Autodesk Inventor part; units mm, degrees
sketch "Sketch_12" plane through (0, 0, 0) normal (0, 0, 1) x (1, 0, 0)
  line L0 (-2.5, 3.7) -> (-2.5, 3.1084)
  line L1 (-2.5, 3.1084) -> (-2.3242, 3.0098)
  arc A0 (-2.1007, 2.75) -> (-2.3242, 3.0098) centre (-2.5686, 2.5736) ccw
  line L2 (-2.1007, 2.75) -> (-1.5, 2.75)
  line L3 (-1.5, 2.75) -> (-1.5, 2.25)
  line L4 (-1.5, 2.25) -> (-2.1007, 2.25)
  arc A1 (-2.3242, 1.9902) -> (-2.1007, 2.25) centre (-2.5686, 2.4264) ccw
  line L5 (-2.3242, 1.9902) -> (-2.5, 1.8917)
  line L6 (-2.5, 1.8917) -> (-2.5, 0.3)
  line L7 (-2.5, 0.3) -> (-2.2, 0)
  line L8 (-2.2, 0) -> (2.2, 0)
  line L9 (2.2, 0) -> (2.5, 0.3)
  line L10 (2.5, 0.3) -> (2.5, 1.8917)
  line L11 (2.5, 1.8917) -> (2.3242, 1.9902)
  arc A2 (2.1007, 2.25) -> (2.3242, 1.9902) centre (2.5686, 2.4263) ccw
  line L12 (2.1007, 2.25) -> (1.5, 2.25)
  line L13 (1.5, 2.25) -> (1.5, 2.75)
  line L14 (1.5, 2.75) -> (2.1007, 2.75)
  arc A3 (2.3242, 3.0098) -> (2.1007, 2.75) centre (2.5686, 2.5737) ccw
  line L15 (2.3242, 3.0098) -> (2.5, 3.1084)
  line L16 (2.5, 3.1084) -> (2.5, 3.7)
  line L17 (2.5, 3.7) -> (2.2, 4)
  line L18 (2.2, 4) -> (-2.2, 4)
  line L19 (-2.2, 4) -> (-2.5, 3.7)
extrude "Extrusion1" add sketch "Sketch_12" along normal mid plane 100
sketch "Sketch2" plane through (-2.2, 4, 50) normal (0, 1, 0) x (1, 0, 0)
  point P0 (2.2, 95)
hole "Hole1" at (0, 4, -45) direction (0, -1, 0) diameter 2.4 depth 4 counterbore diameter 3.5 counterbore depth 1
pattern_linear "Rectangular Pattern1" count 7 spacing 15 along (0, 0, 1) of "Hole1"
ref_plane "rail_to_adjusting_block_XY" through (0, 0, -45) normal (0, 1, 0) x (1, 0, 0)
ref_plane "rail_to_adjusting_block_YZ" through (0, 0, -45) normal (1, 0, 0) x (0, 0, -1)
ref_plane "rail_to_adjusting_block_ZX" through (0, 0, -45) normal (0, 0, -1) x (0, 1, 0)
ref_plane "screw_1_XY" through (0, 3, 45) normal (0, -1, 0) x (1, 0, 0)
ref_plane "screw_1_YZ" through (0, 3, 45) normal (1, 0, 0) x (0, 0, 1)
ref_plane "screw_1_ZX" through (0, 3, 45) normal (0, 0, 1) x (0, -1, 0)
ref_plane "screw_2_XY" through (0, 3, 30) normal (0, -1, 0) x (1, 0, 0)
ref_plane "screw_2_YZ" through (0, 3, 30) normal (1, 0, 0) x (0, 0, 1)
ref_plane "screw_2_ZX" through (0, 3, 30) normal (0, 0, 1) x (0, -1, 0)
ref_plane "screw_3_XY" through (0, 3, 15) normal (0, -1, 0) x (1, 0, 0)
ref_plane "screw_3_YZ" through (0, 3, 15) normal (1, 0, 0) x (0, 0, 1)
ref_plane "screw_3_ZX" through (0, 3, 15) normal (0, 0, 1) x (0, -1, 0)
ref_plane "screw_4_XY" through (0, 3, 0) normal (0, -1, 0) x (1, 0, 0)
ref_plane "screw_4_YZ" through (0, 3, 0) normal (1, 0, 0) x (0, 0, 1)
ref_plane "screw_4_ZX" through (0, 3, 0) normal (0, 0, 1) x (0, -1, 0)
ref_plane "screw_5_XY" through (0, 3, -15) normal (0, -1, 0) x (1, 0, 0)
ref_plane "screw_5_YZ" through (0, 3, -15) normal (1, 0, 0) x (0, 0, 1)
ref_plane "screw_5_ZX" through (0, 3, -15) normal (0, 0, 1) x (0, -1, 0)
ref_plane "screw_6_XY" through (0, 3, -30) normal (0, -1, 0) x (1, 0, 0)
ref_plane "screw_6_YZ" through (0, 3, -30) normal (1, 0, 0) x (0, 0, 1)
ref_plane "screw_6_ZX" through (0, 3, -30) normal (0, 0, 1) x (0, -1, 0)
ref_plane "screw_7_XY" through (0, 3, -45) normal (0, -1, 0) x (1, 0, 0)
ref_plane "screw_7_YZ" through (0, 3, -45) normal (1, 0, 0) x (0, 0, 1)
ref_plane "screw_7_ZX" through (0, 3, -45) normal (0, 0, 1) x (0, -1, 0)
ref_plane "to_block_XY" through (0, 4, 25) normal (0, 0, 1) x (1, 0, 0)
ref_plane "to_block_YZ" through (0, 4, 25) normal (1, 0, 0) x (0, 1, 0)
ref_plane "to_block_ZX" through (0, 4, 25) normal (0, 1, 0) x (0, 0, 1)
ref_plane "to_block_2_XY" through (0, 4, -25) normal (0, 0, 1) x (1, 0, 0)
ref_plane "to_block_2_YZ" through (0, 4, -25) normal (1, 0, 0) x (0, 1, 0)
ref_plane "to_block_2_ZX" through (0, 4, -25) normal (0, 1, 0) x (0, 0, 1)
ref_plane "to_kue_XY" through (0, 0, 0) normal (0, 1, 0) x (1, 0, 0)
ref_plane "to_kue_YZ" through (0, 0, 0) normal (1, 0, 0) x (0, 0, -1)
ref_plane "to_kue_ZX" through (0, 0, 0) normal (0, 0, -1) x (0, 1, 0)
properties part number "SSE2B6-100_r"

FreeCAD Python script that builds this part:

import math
import FreeCAD as App
import Part
import Sketcher

doc = App.newDocument("Part")
body = doc.addObject("PartDesign::Body", "Body")

sketch1 = body.newObject("Sketcher::SketchObject", "Sketch")
sketch1.AttachmentSupport = (doc.getObject("XY_Plane"), [""])
sketch1.MapMode = "FlatFace"
sketch1.addGeometry([
    Part.LineSegment(App.Vector(-2.2, 4, 0), App.Vector(-2.5, 3.7, 0)),
    Part.LineSegment(App.Vector(-2.5, 3.7, 0), App.Vector(-2.5, 3.11, 0)),
    Part.LineSegment(App.Vector(-2.5, 3.11, 0), App.Vector(-2.32, 3.01, 0)),
    Part.ArcOfCircle(Part.Circle(App.Vector(-2.57, 2.57, 0), App.Vector(0, 0, 1), 0.5), math.radians(21), math.radians(61)),
    Part.LineSegment(App.Vector(-2.1, 2.75, 0), App.Vector(-1.5, 2.75, 0)),
    Part.LineSegment(App.Vector(-1.5, 2.75, 0), App.Vector(-1.5, 2.25, 0)),
    Part.LineSegment(App.Vector(-1.5, 2.25, 0), App.Vector(-2.1, 2.25, 0)),
    Part.ArcOfCircle(Part.Circle(App.Vector(-2.57, 2.43, 0), App.Vector(0, 0, 1), 0.5), math.radians(-61), math.radians(-21)),
    Part.LineSegment(App.Vector(-2.32, 1.99, 0), App.Vector(-2.5, 1.89, 0)),
    Part.LineSegment(App.Vector(-2.5, 1.89, 0), App.Vector(-2.5, 0.3, 0)),
    Part.LineSegment(App.Vector(-2.5, 0.3, 0), App.Vector(-2.2, 0, 0)),
    Part.LineSegment(App.Vector(-2.2, 0, 0), App.Vector(2.2, 0, 0)),
    Part.LineSegment(App.Vector(2.2, 0, 0), App.Vector(2.5, 0.3, 0)),
    Part.LineSegment(App.Vector(2.5, 0.3, 0), App.Vector(2.5, 1.89, 0)),
    Part.LineSegment(App.Vector(2.5, 1.89, 0), App.Vector(2.32, 1.99, 0)),
    Part.ArcOfCircle(Part.Circle(App.Vector(2.57, 2.43, 0), App.Vector(0, 0, 1), 0.5), math.radians(-159), math.radians(-119)),
    Part.LineSegment(App.Vector(2.1, 2.25, 0), App.Vector(1.5, 2.25, 0)),
    Part.LineSegment(App.Vector(1.5, 2.25, 0), App.Vector(1.5, 2.75, 0)),
    Part.LineSegment(App.Vector(1.5, 2.75, 0), App.Vector(2.1, 2.75, 0)),
    Part.ArcOfCircle(Part.Circle(App.Vector(2.57, 2.57, 0), App.Vector(0, 0, 1), 0.5), math.radians(119), math.radians(159)),
    Part.LineSegment(App.Vector(2.32, 3.01, 0), App.Vector(2.5, 3.11, 0)),
    Part.LineSegment(App.Vector(2.5, 3.11, 0), App.Vector(2.5, 3.7, 0)),
    Part.LineSegment(App.Vector(2.5, 3.7, 0), App.Vector(2.2, 4, 0)),
    Part.LineSegment(App.Vector(2.2, 4, 0), App.Vector(-2.2, 4, 0)),
], False)
sketch1.addConstraint([
    Sketcher.Constraint("Coincident", 0, 2, 1, 1),
    Sketcher.Constraint("Coincident", 1, 2, 2, 1),
    Sketcher.Constraint("Tangent", 2, 2, 3, 2),
    Sketcher.Constraint("Coincident", 3, 1, 4, 1),
    Sketcher.Constraint("Coincident", 4, 2, 5, 1),
    Sketcher.Constraint("Coincident", 5, 2, 6, 1),
    Sketcher.Constraint("Coincident", 6, 2, 7, 2),
    Sketcher.Constraint("Tangent", 7, 1, 8, 1),
    Sketcher.Constraint("Coincident", 8, 2, 9, 1),
    Sketcher.Constraint("Coincident", 9, 2, 10, 1),
    Sketcher.Constraint("Coincident", 10, 2, 11, 1),
    Sketcher.Constraint("Coincident", 11, 2, 12, 1),
    Sketcher.Constraint("Coincident", 12, 2, 13, 1),
    Sketcher.Constraint("Coincident", 13, 2, 14, 1),
    Sketcher.Constraint("Tangent", 14, 2, 15, 2),
    Sketcher.Constraint("Coincident", 15, 1, 16, 1),
    Sketcher.Constraint("Coincident", 16, 2, 17, 1),
    Sketcher.Constraint("Coincident", 17, 2, 18, 1),
    Sketcher.Constraint("Coincident", 18, 2, 19, 2),
    Sketcher.Constraint("Tangent", 19, 1, 20, 1),
    Sketcher.Constraint("Coincident", 20, 2, 21, 1),
    Sketcher.Constraint("Coincident", 21, 2, 22, 1),
    Sketcher.Constraint("Coincident", 22, 2, 23, 1),
    Sketcher.Constraint("Coincident", 23, 2, 0, 1),
    Sketcher.Constraint("Vertical", 1),
    Sketcher.Constraint("Horizontal", 4),
    Sketcher.Constraint("Vertical", 5),
    Sketcher.Constraint("Horizontal", 6),
    Sketcher.Constraint("Vertical", 9),
    Sketcher.Constraint("Horizontal", 11),
    Sketcher.Constraint("Vertical", 13),
    Sketcher.Constraint("Horizontal", 16),
    Sketcher.Constraint("Vertical", 17),
    Sketcher.Constraint("Horizontal", 18),
    Sketcher.Constraint("Vertical", 21),
    Sketcher.Constraint("Horizontal", 23),
    Sketcher.Constraint("Equal", 3, 7),
    Sketcher.Constraint("Equal", 7, 15),
    Sketcher.Constraint("Equal", 15, 19),
    Sketcher.Constraint("Symmetric", 10, 2, 11, 2, -1, 1),
    Sketcher.Constraint("Symmetric", 7, 3, 15, 3, -2),
    Sketcher.Constraint("Symmetric", 3, 3, 19, 3, -2),
    Sketcher.Constraint("Symmetric", 9, 2, 12, 2, -2),
    Sketcher.Constraint("Symmetric", 5, 2, 16, 2, -2),
    Sketcher.Constraint("Symmetric", 1, 2, 20, 2, -2),
    Sketcher.Constraint("Perpendicular", 0, 10),
    Sketcher.Constraint("Perpendicular", 10, 12),
    Sketcher.Constraint("Parallel", 2, 14),
    Sketcher.Constraint("Parallel", 8, 20),
    Sketcher.Constraint("Perpendicular", 12, 22),
    Sketcher.Constraint("Horizontal", 4, 2, 17, 2),
    Sketcher.Constraint("Horizontal", 0, 2, 21, 2),
    Sketcher.Constraint("Vertical", 3, 3, 7, 3),
    Sketcher.Constraint("Vertical", 3, 1, 6, 2),
    Sketcher.Constraint("Vertical", 1, 2, 8, 2),
    Sketcher.Constraint("Vertical", 11, 2, 22, 2),
    Sketcher.Constraint("Radius", 3, 0.5),
    Sketcher.Constraint("DistanceX", 11, 1, 11, 2, 4.4),
    Sketcher.Constraint("DistanceY", 5, 2, 5, 1, 0.5),
    Sketcher.Constraint("DistanceY", -1, 1, 22, 2, 4.0),
    Sketcher.Constraint("DistanceX", 1, 2, 4, 2, 1.0),
    Sketcher.Constraint("DistanceX", 5, 2, 12, 2, 4.0),
    Sketcher.Constraint("DistanceY", -1, 1, 3, 1, 2.75),
    Sketcher.Constraint("DistanceX", 4, 1, 4, 2, 0.6007),
    Sketcher.Constraint("DistanceY", 1, 2, 1, 1, 0.5916),
    Sketcher.Constraint("DistanceY", 7, 3, 1, 2, 0.682),
])
pad1 = body.newObject("PartDesign::Pad", "Pad")
pad1.Profile = sketch1
pad1.Length = 100
pad1.Midplane = True

sketch2 = body.newObject("Sketcher::SketchObject", "Sketch001")
sketch2.AttachmentSupport = (doc.getObject("XZ_Plane"), [""])
sketch2.MapMode = "FlatFace"
sketch2.AttachmentOffset = App.Placement(App.Vector(0, 0, -4), App.Rotation())
sketch2.addGeometry(Part.Circle(App.Vector(0, -45, 0), App.Vector(0, 0, 1), 1.2), False)
sketch2.addConstraint([
    Sketcher.Constraint("PointOnObject", 0, 3, -2),
    Sketcher.Constraint("Diameter", 0, 2.4),
    Sketcher.Constraint("DistanceY", 0, 3, -1, 1, 45.0),
])
doc.recompute()
hole = body.newObject("PartDesign::Hole", "Hole")
hole.Profile = sketch2
hole.ThreadType = "None"
hole.Diameter = 2.4
hole.DepthType = "Dimension"
hole.Depth = 4
hole.DrillPoint = "Flat"
hole.HoleCutType = "Counterbore"
hole.HoleCutDiameter = 3.5
hole.HoleCutDepth = 1
hole.Reversed = True
doc.recompute()

linearpattern = body.newObject("PartDesign::LinearPattern", "LinearPattern")
linearpattern.Originals = [hole]
linearpattern.Direction = (doc.getObject("Z_Axis"), [""])
linearpattern.Mode = "offset"
linearpattern.Offset = 15
linearpattern.Occurrences = 7
body.Tip = linearpattern

doc.recompute()
